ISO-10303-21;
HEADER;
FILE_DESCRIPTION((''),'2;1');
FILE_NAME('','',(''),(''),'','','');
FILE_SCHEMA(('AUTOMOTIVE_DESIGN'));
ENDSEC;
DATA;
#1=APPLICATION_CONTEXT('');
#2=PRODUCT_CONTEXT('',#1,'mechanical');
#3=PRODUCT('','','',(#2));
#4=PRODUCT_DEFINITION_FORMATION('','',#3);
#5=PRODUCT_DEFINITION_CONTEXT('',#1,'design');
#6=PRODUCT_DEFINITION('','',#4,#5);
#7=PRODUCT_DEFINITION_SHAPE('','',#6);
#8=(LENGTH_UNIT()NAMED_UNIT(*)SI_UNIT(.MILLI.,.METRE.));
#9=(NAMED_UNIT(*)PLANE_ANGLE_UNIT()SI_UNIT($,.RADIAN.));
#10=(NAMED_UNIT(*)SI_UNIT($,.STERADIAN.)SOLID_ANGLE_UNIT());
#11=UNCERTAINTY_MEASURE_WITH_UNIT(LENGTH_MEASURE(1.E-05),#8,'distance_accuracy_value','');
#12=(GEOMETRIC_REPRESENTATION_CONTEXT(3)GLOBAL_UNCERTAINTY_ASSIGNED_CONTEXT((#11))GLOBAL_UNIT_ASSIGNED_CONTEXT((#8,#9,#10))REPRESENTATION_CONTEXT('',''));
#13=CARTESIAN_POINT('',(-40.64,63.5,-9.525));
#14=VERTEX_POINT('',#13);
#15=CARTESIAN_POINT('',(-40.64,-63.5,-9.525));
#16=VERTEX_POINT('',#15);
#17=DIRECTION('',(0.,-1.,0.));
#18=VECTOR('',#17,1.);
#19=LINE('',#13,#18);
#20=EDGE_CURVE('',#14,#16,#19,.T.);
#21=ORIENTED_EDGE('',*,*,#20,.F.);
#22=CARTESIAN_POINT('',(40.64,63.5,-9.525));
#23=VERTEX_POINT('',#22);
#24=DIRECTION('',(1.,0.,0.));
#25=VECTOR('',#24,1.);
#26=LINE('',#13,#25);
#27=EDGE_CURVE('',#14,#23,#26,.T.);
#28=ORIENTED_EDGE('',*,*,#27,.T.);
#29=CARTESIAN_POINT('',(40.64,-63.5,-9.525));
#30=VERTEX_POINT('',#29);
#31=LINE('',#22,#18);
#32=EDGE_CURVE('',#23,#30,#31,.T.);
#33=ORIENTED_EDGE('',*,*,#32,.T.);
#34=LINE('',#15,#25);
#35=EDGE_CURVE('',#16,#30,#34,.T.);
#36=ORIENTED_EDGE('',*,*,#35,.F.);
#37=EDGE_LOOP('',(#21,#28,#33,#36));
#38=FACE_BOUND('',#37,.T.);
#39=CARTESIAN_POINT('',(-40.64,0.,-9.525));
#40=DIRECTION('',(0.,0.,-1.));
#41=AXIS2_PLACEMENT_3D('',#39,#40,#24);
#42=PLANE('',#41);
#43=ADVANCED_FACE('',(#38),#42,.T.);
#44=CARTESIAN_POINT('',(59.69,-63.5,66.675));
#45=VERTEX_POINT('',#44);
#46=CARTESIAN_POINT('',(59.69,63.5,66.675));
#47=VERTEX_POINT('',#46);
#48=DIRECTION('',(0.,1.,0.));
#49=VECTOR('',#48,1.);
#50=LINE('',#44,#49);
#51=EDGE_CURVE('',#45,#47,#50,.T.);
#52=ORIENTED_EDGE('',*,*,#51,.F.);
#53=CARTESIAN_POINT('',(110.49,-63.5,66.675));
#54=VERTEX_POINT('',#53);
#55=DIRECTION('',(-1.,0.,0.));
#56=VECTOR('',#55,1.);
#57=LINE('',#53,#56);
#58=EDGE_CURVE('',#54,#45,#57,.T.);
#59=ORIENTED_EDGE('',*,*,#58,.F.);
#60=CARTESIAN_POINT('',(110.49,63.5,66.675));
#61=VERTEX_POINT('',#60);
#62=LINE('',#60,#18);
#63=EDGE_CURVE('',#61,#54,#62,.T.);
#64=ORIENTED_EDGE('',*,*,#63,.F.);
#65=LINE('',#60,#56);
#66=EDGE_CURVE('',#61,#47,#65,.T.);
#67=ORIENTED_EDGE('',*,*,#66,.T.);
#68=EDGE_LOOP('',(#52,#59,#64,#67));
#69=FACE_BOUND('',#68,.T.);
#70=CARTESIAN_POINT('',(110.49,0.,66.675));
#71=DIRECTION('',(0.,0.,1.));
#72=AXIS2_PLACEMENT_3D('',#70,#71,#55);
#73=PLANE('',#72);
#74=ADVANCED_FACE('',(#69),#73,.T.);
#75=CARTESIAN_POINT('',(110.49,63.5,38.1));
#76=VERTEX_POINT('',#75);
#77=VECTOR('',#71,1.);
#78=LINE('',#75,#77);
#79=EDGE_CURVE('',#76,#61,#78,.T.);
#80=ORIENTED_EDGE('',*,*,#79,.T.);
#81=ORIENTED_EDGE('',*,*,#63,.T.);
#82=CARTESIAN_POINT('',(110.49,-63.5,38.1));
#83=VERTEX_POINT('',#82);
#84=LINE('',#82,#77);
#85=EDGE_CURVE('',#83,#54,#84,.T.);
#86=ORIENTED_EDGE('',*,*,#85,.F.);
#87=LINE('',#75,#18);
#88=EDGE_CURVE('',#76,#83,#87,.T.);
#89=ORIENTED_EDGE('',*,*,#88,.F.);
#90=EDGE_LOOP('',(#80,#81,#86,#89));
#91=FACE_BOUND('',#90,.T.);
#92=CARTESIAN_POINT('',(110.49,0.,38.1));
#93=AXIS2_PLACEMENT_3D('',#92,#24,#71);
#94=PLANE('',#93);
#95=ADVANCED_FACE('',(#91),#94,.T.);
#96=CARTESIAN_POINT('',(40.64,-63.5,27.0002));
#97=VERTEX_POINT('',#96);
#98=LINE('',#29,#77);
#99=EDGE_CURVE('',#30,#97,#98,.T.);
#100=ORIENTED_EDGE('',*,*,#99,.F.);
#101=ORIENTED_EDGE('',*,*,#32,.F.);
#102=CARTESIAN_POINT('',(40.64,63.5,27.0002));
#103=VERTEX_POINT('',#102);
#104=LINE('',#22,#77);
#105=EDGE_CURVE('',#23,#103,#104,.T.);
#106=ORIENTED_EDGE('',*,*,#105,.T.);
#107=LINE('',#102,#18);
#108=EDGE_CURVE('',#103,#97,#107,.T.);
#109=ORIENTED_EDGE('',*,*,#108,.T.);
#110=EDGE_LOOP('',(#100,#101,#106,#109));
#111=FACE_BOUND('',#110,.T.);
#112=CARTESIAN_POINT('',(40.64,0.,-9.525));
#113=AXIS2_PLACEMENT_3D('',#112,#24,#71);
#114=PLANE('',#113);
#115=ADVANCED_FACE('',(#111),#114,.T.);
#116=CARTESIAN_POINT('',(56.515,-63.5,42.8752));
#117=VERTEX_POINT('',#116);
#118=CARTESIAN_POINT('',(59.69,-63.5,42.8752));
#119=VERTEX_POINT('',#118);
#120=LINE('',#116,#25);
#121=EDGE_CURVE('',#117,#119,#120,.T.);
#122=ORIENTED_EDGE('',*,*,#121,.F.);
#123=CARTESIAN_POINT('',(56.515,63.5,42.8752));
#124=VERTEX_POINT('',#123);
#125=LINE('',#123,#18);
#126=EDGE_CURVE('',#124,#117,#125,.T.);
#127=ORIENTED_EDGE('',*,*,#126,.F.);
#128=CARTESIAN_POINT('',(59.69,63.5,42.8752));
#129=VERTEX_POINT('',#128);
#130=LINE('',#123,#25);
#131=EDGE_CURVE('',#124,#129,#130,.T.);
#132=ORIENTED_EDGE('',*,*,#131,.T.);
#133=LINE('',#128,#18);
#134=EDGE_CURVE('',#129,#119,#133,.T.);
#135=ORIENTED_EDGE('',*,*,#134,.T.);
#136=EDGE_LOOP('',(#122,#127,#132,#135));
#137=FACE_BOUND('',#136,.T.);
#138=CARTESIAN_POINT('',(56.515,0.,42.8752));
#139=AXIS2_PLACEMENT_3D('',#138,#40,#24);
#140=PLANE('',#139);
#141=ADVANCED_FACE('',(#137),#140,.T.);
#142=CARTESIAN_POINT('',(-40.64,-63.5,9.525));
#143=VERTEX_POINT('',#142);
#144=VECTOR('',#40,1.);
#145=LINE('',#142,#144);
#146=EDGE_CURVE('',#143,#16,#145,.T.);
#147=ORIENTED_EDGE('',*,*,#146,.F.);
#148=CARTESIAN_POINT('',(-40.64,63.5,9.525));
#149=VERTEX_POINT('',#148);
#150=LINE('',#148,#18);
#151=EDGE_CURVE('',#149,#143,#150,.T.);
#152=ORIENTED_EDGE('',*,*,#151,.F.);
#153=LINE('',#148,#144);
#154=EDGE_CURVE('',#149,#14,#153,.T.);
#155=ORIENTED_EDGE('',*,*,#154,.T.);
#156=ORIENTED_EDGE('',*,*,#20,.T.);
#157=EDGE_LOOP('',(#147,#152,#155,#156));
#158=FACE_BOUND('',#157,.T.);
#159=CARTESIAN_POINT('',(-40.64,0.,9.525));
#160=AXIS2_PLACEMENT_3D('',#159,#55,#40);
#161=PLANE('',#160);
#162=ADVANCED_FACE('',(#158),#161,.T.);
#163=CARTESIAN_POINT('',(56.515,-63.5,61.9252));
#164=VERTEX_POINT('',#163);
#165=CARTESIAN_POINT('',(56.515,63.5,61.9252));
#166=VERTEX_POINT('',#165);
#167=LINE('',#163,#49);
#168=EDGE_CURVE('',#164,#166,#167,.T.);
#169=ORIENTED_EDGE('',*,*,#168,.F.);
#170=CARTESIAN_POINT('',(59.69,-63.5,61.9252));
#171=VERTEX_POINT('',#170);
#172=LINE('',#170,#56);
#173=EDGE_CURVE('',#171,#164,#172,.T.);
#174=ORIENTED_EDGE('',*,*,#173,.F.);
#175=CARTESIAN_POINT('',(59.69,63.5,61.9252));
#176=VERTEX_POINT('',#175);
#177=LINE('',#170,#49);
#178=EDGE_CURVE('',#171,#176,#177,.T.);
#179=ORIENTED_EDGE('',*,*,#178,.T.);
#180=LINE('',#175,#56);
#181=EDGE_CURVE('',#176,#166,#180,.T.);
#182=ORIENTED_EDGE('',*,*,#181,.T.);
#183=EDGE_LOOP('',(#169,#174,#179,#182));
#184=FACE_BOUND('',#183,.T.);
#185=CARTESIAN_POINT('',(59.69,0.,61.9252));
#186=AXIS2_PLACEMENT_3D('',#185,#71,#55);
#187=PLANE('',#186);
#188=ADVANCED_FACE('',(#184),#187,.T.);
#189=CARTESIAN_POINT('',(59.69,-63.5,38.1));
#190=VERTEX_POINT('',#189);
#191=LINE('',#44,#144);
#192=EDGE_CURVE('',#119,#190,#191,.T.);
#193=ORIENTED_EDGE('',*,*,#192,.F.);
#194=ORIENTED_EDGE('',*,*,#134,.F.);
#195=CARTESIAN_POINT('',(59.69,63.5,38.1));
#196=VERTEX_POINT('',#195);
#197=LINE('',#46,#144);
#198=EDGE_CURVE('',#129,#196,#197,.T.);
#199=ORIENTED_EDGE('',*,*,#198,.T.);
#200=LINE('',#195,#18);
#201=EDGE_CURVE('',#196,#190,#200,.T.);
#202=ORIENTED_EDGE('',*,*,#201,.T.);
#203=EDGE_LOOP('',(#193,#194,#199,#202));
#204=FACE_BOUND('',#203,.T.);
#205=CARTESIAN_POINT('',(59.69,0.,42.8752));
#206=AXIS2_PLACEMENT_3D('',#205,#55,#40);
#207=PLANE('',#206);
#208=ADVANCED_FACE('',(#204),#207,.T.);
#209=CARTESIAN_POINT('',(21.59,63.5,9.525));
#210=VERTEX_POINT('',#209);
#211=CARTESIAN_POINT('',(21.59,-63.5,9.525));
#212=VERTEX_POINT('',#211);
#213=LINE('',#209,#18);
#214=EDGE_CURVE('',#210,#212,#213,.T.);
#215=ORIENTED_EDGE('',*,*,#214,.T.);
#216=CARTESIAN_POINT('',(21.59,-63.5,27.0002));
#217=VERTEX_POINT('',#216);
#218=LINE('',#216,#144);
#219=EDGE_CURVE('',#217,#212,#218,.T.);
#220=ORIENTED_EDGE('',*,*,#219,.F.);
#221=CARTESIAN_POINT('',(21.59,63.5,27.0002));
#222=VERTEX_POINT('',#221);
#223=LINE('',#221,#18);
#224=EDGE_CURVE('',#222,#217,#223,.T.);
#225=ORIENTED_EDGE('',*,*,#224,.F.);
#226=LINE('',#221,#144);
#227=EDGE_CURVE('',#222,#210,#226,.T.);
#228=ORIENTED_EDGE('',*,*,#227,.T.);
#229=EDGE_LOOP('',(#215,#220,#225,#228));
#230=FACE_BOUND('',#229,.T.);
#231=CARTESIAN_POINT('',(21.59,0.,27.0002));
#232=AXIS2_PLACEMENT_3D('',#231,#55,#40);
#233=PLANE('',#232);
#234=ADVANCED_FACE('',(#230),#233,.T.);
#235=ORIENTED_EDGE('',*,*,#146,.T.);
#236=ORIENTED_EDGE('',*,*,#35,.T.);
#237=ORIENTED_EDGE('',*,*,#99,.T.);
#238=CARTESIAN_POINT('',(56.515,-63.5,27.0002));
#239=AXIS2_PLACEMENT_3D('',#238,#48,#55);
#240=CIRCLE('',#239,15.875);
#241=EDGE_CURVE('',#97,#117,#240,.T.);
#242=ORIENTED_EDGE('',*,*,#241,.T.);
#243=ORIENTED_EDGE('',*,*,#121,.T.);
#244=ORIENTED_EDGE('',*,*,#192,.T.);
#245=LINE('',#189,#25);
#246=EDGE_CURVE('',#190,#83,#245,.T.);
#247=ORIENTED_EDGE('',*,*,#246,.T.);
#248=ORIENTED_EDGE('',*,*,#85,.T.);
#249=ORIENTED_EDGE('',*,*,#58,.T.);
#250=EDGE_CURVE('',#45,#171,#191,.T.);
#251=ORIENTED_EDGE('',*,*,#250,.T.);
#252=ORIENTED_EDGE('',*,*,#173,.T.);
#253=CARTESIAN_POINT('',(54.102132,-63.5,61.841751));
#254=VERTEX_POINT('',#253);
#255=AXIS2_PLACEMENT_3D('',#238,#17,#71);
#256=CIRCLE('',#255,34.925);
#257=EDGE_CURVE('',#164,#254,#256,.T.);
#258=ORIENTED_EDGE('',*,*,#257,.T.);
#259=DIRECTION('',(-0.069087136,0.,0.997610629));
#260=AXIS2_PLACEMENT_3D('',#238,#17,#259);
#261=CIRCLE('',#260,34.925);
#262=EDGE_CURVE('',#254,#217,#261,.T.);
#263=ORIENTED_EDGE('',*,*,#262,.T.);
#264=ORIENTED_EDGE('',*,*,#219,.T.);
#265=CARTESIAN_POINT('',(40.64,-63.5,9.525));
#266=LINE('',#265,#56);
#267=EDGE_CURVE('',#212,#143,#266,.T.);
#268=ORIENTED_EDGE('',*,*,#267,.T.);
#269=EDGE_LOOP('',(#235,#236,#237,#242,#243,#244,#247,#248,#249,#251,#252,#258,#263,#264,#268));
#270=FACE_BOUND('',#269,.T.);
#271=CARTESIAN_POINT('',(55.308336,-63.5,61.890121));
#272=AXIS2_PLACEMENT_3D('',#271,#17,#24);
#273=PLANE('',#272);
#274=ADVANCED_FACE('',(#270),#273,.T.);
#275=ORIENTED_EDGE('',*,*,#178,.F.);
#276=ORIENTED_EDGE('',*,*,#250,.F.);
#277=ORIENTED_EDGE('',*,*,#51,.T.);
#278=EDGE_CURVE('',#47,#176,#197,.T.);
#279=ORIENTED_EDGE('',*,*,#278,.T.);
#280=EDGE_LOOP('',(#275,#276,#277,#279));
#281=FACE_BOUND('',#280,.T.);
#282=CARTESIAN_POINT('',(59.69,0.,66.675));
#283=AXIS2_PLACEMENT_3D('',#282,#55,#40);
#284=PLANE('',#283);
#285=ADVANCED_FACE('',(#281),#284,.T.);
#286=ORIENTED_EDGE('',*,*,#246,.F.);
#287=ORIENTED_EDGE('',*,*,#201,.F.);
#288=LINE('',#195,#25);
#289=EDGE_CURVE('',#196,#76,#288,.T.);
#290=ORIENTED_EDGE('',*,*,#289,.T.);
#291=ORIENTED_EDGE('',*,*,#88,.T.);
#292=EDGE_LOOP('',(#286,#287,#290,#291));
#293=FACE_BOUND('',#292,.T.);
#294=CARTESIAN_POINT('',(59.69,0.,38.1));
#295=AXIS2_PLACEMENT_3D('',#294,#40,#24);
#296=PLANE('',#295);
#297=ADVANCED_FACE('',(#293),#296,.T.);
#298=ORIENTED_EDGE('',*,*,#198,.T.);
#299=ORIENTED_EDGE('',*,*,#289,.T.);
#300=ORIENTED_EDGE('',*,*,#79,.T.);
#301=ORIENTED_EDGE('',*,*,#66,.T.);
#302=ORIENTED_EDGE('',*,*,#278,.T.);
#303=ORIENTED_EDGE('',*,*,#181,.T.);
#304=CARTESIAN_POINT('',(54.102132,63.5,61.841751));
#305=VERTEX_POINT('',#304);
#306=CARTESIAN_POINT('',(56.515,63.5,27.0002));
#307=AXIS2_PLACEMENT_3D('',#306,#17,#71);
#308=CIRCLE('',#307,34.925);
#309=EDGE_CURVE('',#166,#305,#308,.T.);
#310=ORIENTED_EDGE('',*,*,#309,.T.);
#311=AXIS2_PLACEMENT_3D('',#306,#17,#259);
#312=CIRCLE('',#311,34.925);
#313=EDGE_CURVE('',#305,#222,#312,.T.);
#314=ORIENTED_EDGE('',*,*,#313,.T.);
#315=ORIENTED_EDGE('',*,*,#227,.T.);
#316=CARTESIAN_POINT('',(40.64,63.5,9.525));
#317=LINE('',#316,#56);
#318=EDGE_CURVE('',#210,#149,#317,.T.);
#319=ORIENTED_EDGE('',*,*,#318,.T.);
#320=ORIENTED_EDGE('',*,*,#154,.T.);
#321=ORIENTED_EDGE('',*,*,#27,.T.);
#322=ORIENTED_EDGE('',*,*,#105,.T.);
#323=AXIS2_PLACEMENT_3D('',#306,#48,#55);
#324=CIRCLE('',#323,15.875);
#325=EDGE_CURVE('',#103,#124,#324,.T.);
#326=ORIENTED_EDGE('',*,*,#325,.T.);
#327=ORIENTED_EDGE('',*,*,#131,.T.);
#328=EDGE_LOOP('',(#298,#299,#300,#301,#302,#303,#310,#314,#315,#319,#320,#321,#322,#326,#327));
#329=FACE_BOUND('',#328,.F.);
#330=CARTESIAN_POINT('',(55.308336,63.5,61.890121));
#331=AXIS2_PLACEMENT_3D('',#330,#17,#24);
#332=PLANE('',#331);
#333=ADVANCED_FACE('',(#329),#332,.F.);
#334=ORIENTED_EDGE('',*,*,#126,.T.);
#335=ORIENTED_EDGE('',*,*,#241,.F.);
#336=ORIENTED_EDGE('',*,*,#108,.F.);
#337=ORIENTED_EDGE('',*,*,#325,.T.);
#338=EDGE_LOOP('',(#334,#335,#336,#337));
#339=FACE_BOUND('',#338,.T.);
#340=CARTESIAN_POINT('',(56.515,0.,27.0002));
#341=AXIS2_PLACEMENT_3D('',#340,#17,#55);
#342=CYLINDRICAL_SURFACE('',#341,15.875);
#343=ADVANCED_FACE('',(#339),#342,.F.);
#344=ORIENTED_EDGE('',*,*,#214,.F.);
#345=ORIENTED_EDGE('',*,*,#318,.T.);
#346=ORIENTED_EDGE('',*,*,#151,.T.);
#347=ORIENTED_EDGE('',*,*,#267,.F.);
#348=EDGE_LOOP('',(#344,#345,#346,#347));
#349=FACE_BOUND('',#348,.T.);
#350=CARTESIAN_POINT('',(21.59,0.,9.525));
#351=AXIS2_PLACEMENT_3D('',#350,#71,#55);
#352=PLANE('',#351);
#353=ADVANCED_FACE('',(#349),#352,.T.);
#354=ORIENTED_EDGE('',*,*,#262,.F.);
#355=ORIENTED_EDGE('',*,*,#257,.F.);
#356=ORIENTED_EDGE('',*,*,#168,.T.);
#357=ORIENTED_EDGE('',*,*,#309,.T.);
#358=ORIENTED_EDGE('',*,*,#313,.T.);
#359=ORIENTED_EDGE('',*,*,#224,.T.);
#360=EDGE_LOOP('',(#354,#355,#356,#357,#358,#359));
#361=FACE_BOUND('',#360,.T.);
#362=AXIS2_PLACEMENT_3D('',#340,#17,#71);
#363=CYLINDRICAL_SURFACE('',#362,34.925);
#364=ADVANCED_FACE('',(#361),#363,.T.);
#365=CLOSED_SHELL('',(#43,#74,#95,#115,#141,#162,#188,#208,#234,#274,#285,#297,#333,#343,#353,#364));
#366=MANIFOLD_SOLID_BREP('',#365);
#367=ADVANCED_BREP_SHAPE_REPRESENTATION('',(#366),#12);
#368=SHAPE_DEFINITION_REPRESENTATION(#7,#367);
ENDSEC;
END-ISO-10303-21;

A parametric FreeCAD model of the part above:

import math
import FreeCAD as App
import Part
import Sketcher

V = App.Vector
Q = App.Units.Quantity

doc = App.newDocument("Part")
params = doc.addObject("Spreadsheet::Sheet", "Params")
for row, (alias, value) in enumerate([
    ("sketch1_width", "2 in"),
    ("sketch1_width2", "3.2 in"),
    ("sketch1_radius", "1.375 in"),
    ("sketch1_radius2", "0.625 in"),
    ("sketch1_height", "0.75 in"),
    ("pad1_length", "5 in"),
], start=1):
    params.set(f"A{row}", alias)
    params.set(f"B{row}", "=" + value)
    params.setAlias(f"B{row}", alias)

body = doc.addObject("PartDesign::Body", "Body")

# Sketch on XZ plane
sketch1 = body.newObject("Sketcher::SketchObject", "Sketch")
sketch1.AttachmentSupport = (doc.getObject("XZ_Plane"), [""])
sketch1.MapMode = "FlatFace"
sketch1.addGeometry([
    Part.ArcOfCircle(Part.Circle(V(56.515, 27.0002, 0), V(0, 0, 1), 34.925), math.radians(90), math.radians(93.961557)),  # 0
    Part.ArcOfCircle(Part.Circle(V(56.515, 27.0002, 0), V(0, 0, 1), 34.925), math.radians(93.961557), math.radians(180)),  # 1
    Part.LineSegment(V(21.59, 27.0002, 0), V(21.59, 9.525, 0)),  # 2
    Part.LineSegment(V(21.59, 9.525, 0), V(-40.64, 9.525, 0)),  # 3
    Part.LineSegment(V(-40.64, 9.525, 0), V(-40.64, -9.525, 0)),  # 4
    Part.LineSegment(V(-40.64, -9.525, 0), V(40.64, -9.525, 0)),  # 5
    Part.LineSegment(V(40.64, -9.525, 0), V(40.64, 27.0002, 0)),  # 6
    Part.ArcOfCircle(Part.Circle(V(56.515, 27.0002, 0), V(0, 0, 1), 15.875), math.radians(90), math.radians(180)),  # 7
    Part.LineSegment(V(56.515, 42.8752, 0), V(59.69, 42.8752, 0)),  # 8
    Part.LineSegment(V(59.69, 42.8752, 0), V(59.69, 38.1, 0)),  # 9
    Part.LineSegment(V(59.69, 38.1, 0), V(110.49, 38.1, 0)),  # 10
    Part.LineSegment(V(110.49, 38.1, 0), V(110.49, 66.675, 0)),  # 11
    Part.LineSegment(V(110.49, 66.675, 0), V(59.69, 66.675, 0)),  # 12
    Part.LineSegment(V(59.69, 66.675, 0), V(59.69, 61.9252, 0)),  # 13
    Part.LineSegment(V(59.69, 61.9252, 0), V(56.515, 61.9252, 0)),  # 14
], False)
sketch1.addConstraint([
    Sketcher.Constraint("Tangent", 0, 2, 1, 1),
    Sketcher.Constraint("Tangent", 1, 2, 2, 1),
    Sketcher.Constraint("Coincident", 2, 2, 3, 1),
    Sketcher.Constraint("Coincident", 3, 2, 4, 1),
    Sketcher.Constraint("Coincident", 4, 2, 5, 1),
    Sketcher.Constraint("Coincident", 5, 2, 6, 1),
    Sketcher.Constraint("Tangent", 6, 2, 7, 2),
    Sketcher.Constraint("Tangent", 7, 1, 8, 1),
    Sketcher.Constraint("Coincident", 8, 2, 9, 1),
    Sketcher.Constraint("Coincident", 9, 2, 10, 1),
    Sketcher.Constraint("Coincident", 10, 2, 11, 1),
    Sketcher.Constraint("Coincident", 11, 2, 12, 1),
    Sketcher.Constraint("Coincident", 12, 2, 13, 1),
    Sketcher.Constraint("Coincident", 13, 2, 14, 1),
    Sketcher.Constraint("Tangent", 14, 2, 0, 1),
    Sketcher.Constraint("Vertical", 2),
    Sketcher.Constraint("Horizontal", 3),
    Sketcher.Constraint("Vertical", 4),
    Sketcher.Constraint("Horizontal", 5),
    Sketcher.Constraint("Vertical", 6),
    Sketcher.Constraint("Horizontal", 8),
    Sketcher.Constraint("Vertical", 9),
    Sketcher.Constraint("Horizontal", 10),
    Sketcher.Constraint("Vertical", 11),
    Sketcher.Constraint("Horizontal", 12),
    Sketcher.Constraint("Vertical", 13),
    Sketcher.Constraint("Horizontal", 14),
    Sketcher.Constraint("Coincident", 7, 3, 0, 3),
    Sketcher.Constraint("Equal", 0, 1),
    Sketcher.Constraint("Symmetric", 3, 2, 5, 2, -1, 1),
    Sketcher.Constraint("Vertical", 9, 2, 12, 2),
    Sketcher.Constraint("DistanceX", 10, 1, 10, 2, Q("2 in")),
    Sketcher.Constraint("DistanceX", 5, 1, 5, 2, Q("3.2 in")),
    Sketcher.Constraint("Radius", 0, Q("1.375 in")),
    Sketcher.Constraint("Radius", 7, Q("0.625 in")),
    Sketcher.Constraint("DistanceY", 4, 2, 4, 1, Q("0.75 in")),
    Sketcher.Constraint("DistanceY", -1, 1, 9, 2, Q("1.5 in")),
    Sketcher.Constraint("DistanceX", 8, 1, 8, 2, Q("0.125 in")),
    Sketcher.Constraint("DistanceY", 2, 2, 2, 1, Q("0.688 in")),
    Sketcher.Constraint("DistanceY", 11, 1, 11, 2, Q("1.125 in")),
    Sketcher.Constraint("DistanceX", -1, 1, 0, 2, 54.102132),
])
sketch1.setExpression("Constraints[31]", "Params.sketch1_width")
sketch1.setExpression("Constraints[32]", "Params.sketch1_width2")
sketch1.setExpression("Constraints[33]", "Params.sketch1_radius")
sketch1.setExpression("Constraints[34]", "Params.sketch1_radius2")
sketch1.setExpression("Constraints[35]", "Params.sketch1_height")
pad1 = body.newObject("PartDesign::Pad", "Pad")
pad1.Profile = sketch1
pad1.setExpression("Length", "Params.pad1_length")
pad1.Midplane = True

doc.recompute()
